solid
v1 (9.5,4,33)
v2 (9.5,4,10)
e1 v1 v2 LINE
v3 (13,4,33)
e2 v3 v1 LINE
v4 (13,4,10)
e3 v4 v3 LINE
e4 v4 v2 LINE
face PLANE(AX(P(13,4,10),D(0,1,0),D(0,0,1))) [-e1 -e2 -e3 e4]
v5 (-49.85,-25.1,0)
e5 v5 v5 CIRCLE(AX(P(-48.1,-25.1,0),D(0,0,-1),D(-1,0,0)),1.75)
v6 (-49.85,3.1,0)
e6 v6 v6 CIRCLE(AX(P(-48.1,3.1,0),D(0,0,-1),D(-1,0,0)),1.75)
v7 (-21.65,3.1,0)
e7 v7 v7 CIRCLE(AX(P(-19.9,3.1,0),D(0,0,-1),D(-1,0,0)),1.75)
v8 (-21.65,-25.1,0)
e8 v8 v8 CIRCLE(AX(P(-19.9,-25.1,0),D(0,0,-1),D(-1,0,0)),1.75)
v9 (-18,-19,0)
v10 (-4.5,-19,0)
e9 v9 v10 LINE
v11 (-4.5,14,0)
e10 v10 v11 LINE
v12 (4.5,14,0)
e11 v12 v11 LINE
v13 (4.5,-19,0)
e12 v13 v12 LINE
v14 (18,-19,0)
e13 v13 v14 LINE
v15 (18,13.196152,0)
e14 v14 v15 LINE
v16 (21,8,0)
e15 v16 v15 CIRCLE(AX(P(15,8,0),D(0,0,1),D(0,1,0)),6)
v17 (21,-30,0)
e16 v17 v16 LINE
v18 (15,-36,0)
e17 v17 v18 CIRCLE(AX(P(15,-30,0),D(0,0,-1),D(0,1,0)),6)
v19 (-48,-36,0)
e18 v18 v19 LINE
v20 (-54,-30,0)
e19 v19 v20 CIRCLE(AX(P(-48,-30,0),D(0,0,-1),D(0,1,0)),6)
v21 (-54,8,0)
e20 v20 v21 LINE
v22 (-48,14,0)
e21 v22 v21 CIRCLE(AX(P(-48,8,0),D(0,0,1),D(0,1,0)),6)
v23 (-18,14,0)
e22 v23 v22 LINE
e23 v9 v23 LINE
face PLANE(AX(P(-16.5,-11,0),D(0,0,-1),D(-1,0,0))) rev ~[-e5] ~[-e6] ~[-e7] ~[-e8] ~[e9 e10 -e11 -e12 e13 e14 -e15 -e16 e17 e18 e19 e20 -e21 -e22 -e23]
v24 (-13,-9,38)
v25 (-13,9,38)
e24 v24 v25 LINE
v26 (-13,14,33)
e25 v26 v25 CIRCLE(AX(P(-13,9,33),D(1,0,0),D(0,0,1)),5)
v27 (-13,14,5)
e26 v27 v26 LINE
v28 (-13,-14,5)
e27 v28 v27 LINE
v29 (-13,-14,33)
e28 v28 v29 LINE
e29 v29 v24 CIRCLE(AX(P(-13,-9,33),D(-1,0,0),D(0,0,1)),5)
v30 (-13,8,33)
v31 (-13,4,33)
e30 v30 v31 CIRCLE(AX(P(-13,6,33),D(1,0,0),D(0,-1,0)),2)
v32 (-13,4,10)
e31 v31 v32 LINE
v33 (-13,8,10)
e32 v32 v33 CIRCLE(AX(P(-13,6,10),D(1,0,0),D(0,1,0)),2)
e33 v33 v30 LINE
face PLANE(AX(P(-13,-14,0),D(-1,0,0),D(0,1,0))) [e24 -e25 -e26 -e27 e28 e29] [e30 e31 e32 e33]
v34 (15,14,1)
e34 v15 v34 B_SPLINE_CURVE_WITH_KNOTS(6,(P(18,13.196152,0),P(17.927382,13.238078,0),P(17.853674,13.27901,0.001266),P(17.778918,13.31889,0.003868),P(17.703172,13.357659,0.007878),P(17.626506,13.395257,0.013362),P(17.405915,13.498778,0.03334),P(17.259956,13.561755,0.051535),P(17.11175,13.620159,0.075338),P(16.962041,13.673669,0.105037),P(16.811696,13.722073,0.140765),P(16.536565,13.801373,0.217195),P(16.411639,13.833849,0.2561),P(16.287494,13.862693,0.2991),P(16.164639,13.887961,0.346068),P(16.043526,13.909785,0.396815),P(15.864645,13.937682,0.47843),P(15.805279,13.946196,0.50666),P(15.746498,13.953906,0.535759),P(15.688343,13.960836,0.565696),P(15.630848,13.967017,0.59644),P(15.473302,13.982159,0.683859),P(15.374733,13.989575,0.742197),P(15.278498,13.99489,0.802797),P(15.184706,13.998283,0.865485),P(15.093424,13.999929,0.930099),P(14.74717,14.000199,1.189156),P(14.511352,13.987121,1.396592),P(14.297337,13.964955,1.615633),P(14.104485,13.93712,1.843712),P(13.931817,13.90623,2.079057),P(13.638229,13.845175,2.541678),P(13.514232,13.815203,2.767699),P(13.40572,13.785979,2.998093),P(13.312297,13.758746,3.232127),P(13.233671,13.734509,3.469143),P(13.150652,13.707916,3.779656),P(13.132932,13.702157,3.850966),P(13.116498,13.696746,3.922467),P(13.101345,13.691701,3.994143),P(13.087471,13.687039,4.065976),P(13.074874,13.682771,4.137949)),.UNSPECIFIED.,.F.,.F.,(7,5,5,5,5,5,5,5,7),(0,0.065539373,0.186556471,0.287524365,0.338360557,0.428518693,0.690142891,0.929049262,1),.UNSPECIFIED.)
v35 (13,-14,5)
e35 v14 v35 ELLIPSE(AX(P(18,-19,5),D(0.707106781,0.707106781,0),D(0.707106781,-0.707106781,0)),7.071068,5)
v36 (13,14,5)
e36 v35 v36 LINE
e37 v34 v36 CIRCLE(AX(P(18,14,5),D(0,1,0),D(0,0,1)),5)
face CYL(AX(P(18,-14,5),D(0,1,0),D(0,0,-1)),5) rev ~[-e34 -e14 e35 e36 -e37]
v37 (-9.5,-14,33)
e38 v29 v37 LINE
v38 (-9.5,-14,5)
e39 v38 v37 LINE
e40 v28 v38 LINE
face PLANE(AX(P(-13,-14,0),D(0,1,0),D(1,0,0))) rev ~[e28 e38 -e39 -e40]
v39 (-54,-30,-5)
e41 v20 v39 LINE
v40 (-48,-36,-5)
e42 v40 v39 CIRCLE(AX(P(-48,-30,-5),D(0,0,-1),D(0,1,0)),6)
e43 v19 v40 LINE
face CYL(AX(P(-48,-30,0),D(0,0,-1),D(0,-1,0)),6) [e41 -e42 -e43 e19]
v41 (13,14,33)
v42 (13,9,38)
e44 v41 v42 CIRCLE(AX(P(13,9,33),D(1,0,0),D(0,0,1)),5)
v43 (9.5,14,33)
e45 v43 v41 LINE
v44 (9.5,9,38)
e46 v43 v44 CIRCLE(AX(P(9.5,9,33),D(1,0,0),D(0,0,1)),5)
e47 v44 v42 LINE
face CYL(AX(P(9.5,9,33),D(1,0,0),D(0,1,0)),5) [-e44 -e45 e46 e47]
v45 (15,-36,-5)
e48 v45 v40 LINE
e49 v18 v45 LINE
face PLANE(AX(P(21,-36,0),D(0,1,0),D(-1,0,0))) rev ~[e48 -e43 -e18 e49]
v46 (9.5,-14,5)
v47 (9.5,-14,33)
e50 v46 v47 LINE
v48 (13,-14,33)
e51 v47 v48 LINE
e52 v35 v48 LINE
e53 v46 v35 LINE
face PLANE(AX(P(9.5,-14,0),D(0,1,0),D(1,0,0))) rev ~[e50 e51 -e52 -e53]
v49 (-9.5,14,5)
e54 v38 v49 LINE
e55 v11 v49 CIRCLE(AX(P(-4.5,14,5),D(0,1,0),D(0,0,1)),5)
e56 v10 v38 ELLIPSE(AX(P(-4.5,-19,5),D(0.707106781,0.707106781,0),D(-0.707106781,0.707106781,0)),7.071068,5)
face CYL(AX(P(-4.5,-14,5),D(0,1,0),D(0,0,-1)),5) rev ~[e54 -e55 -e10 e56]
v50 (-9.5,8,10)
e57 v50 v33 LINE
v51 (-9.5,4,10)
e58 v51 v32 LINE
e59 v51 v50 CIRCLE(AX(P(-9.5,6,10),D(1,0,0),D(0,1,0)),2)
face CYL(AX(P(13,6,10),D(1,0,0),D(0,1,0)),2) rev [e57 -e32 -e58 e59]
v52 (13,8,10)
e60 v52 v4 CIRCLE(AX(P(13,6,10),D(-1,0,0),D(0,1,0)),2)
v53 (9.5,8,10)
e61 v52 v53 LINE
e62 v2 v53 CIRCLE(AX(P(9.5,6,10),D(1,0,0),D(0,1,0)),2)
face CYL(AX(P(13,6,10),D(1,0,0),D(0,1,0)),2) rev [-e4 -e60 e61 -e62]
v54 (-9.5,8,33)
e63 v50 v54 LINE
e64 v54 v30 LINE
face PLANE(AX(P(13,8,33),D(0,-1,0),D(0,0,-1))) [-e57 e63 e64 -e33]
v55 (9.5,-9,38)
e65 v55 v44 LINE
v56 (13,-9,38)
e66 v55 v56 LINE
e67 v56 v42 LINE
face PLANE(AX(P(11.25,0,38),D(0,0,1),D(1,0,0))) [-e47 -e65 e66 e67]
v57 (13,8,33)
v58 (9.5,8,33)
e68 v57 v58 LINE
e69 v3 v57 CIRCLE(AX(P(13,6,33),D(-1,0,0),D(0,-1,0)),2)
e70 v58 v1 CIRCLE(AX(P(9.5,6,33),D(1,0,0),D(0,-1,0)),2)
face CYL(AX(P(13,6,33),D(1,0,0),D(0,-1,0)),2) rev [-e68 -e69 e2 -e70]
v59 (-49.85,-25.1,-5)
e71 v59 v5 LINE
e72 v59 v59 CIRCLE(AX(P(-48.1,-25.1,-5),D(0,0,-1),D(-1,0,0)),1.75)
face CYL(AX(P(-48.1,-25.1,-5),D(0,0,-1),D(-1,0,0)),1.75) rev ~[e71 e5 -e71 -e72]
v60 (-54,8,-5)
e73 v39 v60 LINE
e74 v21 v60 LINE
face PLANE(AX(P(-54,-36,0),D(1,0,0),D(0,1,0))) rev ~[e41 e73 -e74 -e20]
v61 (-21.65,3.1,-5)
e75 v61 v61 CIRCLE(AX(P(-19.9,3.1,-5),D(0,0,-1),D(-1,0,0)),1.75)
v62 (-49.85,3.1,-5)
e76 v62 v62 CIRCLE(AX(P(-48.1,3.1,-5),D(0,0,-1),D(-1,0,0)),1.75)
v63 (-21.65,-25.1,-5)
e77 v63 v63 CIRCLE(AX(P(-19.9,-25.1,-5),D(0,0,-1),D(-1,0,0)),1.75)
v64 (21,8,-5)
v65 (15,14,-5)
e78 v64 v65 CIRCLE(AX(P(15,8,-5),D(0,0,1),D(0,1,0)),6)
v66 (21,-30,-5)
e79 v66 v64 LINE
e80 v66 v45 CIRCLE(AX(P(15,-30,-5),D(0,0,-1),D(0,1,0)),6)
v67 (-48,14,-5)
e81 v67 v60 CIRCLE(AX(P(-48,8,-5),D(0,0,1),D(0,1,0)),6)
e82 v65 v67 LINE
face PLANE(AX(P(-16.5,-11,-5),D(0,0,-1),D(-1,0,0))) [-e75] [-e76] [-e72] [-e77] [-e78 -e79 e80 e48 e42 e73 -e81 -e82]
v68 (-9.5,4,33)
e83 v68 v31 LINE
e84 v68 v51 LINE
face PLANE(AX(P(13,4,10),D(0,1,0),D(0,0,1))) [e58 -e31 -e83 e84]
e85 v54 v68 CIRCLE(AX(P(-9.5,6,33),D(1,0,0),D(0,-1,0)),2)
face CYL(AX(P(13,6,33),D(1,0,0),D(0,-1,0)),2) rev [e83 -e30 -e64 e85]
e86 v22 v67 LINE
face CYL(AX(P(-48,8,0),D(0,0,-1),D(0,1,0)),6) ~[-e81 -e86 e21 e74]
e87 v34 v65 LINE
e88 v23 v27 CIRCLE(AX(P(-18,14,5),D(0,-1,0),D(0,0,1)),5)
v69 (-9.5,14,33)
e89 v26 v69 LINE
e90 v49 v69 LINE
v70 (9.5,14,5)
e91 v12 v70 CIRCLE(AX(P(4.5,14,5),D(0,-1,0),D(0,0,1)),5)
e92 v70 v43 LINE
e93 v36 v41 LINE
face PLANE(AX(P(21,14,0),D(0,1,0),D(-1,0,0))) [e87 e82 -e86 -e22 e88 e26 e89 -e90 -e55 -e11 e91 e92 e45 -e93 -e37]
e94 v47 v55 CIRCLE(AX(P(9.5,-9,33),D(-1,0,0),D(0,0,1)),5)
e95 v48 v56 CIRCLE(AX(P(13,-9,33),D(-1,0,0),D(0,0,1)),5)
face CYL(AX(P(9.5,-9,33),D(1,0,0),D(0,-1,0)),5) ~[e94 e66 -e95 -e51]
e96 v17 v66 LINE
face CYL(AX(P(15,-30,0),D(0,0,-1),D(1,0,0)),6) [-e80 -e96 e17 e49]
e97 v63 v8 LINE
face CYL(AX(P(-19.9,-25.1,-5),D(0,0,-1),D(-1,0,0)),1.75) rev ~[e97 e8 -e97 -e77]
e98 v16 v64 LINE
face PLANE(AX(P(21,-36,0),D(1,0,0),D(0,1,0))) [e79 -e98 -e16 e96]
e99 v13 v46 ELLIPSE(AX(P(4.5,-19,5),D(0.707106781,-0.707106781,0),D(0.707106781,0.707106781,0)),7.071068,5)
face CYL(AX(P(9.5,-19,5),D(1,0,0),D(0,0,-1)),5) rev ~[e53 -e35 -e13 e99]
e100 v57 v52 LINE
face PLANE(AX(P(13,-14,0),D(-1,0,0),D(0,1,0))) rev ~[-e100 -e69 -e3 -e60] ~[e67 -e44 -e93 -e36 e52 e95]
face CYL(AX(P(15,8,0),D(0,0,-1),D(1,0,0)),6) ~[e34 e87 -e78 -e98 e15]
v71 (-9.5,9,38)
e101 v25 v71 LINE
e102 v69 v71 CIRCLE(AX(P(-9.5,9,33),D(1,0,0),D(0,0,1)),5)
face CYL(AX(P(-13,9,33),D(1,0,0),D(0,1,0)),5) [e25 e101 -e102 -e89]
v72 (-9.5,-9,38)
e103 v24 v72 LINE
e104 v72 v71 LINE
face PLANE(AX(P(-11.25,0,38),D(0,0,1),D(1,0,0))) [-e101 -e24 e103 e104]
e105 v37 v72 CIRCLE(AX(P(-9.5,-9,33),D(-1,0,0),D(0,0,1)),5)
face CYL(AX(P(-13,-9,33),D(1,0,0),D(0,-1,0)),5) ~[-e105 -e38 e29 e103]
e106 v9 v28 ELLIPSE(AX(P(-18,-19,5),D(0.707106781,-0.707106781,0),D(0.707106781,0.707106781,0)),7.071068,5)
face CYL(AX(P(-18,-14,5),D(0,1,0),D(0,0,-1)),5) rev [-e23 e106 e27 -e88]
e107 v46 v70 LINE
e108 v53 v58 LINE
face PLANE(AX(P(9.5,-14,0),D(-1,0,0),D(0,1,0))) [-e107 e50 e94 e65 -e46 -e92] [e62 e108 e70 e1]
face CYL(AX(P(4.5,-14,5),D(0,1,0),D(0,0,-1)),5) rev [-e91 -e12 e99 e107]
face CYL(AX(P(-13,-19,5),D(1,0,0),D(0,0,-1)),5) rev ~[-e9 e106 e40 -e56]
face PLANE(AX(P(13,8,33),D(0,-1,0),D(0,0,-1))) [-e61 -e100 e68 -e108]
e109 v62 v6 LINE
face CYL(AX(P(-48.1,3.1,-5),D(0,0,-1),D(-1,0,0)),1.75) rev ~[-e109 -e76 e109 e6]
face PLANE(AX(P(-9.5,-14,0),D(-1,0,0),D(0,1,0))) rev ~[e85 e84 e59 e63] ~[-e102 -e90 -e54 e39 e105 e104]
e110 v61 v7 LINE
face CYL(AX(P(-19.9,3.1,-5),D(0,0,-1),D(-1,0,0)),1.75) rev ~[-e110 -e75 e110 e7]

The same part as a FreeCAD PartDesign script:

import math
import FreeCAD as App
import Part
import Sketcher

V = App.Vector
Q = App.Units.Quantity


def edges_at(feature, points):
    """Names of the edges that pass closest to the given points."""
    edges = feature.Shape.Edges
    near = lambda p: min(range(len(edges)), key=lambda i: edges[i].distToShape(Part.Vertex(*p))[0])
    return sorted({f"Edge{near(p) + 1}" for p in points})


def add_polygon(sketch, points):
    """Adds a closed chain of lines whose ends are joined by coincident constraints."""
    first, n = sketch.GeometryCount, len(points)
    for a, b in zip(points, points[1:] + points[:1]):
        sketch.addGeometry(Part.LineSegment(App.Vector(*a, 0), App.Vector(*b, 0)), False)
    for i in range(n):
        sketch.addConstraint(Sketcher.Constraint("Coincident", first + i, 2, first + (i + 1) % n, 1))

doc = App.newDocument("Part")
body = doc.addObject("PartDesign::Body", "Body")

# Sketch on XY plane
sketch1 = body.newObject("Sketcher::SketchObject", "Sketch")
sketch1.AttachmentSupport = (doc.getObject("XY_Plane"), [""])
sketch1.MapMode = "FlatFace"
add_polygon(sketch1, [(-13, 14), (-13, -14), (-9.5, -14), (-9.5, 14)])  # lines 0-3
sketch1.addConstraint([
    Sketcher.Constraint("Vertical", 0),
    Sketcher.Constraint("Horizontal", 1),
    Sketcher.Constraint("Vertical", 2),
    Sketcher.Constraint("Horizontal", 3),
    Sketcher.Constraint("DistanceY", 0, 2, 0, 1, Q("28 mm")),
    Sketcher.Constraint("DistanceX", 1, 1, 1, 2, Q("3.5 mm")),
    Sketcher.Constraint("DistanceX", 0, 2, -1, 1, Q("13 mm")),
    Sketcher.Constraint("DistanceY", 0, 2, -1, 1, Q("14 mm")),
])
pad1 = body.newObject("PartDesign::Pad", "Pad")
pad1.Profile = sketch1
pad1.Length = 38
body2 = doc.addObject("PartDesign::Body", "Body001")

# Sketch on XY plane
sketch2 = body2.newObject("Sketcher::SketchObject", "Sketch001")
sketch2.AttachmentSupport = (doc.getObject("XY_Plane001"), [""])
sketch2.MapMode = "FlatFace"
add_polygon(sketch2, [(9.5, 14), (9.5, -14), (13, -14), (13, 14)])  # lines 0-3
sketch2.addConstraint([
    Sketcher.Constraint("Vertical", 0),
    Sketcher.Constraint("Horizontal", 1),
    Sketcher.Constraint("Vertical", 2),
    Sketcher.Constraint("Horizontal", 3),
    Sketcher.Constraint("DistanceY", 0, 2, 0, 1, Q("28 mm")),
    Sketcher.Constraint("DistanceX", 1, 1, 1, 2, Q("3.5 mm")),
    Sketcher.Constraint("DistanceY", 0, 2, -1, 1, Q("14 mm")),
    Sketcher.Constraint("DistanceX", -1, 1, 1, 2, Q("13 mm")),
])
pad2 = body2.newObject("PartDesign::Pad", "Pad001")
pad2.Profile = sketch2
pad2.Length = 38
body.AllowCompound = True
doc.recompute()

boolean = body.newObject("PartDesign::Boolean", "Boolean")
boolean.Type = "Fuse"
boolean.addObjects([body2])

# Sketch on XY plane
sketch3 = body.newObject("Sketcher::SketchObject", "Sketch002")
sketch3.AttachmentSupport = (doc.getObject("XY_Plane"), [""])
sketch3.MapMode = "FlatFace"
add_polygon(sketch3, [(21, 14), (21, -36), (-54, -36), (-54, 14)])  # lines 0-3
sketch3.addConstraint([
    Sketcher.Constraint("Vertical", 0),
    Sketcher.Constraint("Horizontal", 1),
    Sketcher.Constraint("Vertical", 2),
    Sketcher.Constraint("Horizontal", 3),
    Sketcher.Constraint("DistanceX", 1, 2, 1, 1, Q("75 mm")),
    Sketcher.Constraint("DistanceY", 0, 2, 0, 1, Q("50 mm")),
    Sketcher.Constraint("DistanceX", -1, 1, 0, 2, Q("21 mm")),
    Sketcher.Constraint("DistanceY", 0, 2, -1, 1, Q("36 mm")),
])
pad3 = body.newObject("PartDesign::Pad", "Pad002")
pad3.Profile = sketch3
pad3.Length = 5
pad3.Reversed = True
doc.recompute()

fillet = body.newObject("PartDesign::Fillet", "Fillet")
fillet.Base = (pad3, edges_at(pad3, [
    (-54, 14, -2.5),
    (21, 14, -2.5),
    (21, -36, -2.5),
    (-54, -36, -2.5),
]))
fillet.Radius = 6
doc.recompute()

fillet2 = body.newObject("PartDesign::Fillet", "Fillet001")
fillet2.Base = (fillet, edges_at(fillet, [
    (-11.25, 14, 38),
    (11.25, -14, 0),
    (13, 0, 0),
    (11.25, 14, 38),
    (11.25, -14, 38),
    (9.5, 0, 0),
    (-11.25, -14, 38),
    (-13, 0, 0),
    (-9.5, 0, 0),
    (-11.25, -14, 0),
]))
fillet2.Radius = 5

# Sketch on YZ plane
sketch4 = body.newObject("Sketcher::SketchObject", "Sketch003")
sketch4.AttachmentSupport = (doc.getObject("YZ_Plane"), [""])
sketch4.MapMode = "FlatFace"
sketch4.AttachmentOffset = App.Placement(V(0, 0, 13), App.Rotation())
sketch4.addGeometry([
    Part.LineSegment(V(4, 33, 0), V(4, 10, 0)),
    Part.ArcOfCircle(Part.Circle(V(6, 10, 0), V(0, 0, 1), 2), math.radians(180), math.radians(360)),
    Part.LineSegment(V(8, 10, 0), V(8, 33, 0)),
    Part.ArcOfCircle(Part.Circle(V(6, 33, 0), V(0, 0, 1), 2), math.radians(0), math.radians(180)),
], False)
sketch4.addConstraint([
    Sketcher.Constraint("Tangent", 0, 2, 1, 1),
    Sketcher.Constraint("Tangent", 1, 2, 2, 1),
    Sketcher.Constraint("Tangent", 2, 2, 3, 1),
    Sketcher.Constraint("Tangent", 3, 2, 0, 1),
    Sketcher.Constraint("Vertical", 0),
    Sketcher.Constraint("Vertical", 2),
    Sketcher.Constraint("Radius", 1, Q("2 mm")),
    Sketcher.Constraint("DistanceY", 0, 2, 0, 1, Q("23 mm")),
    Sketcher.Constraint("DistanceX", -1, 1, 1, 3, Q("6 mm")),
    Sketcher.Constraint("DistanceY", -1, 1, 1, 3, Q("10 mm")),
])
pocket1 = body.newObject("PartDesign::Pocket", "Pocket")
pocket1.Profile = sketch4
pocket1.Type = "ThroughAll"
pocket1.Midplane = True

# Sketch on XY plane
sketch5 = body.newObject("Sketcher::SketchObject", "Sketch004")
sketch5.AttachmentSupport = (doc.getObject("XY_Plane"), [""])
sketch5.MapMode = "FlatFace"
sketch5.AttachmentOffset = App.Placement(V(0, 0, -5), App.Rotation())
sketch5.addGeometry([
    Part.Circle(V(-19.9, 3.1, 0), V(0, 0, 1), 1.8),
    Part.Circle(V(-48.1, 3.1, 0), V(0, 0, 1), 1.8),
    Part.Circle(V(-48.1, -25.1, 0), V(0, 0, 1), 1.8),
    Part.Circle(V(-19.9, -25.1, 0), V(0, 0, 1), 1.8),
], False)
sketch5.addConstraint([
    Sketcher.Constraint("Equal", 0, 1),
    Sketcher.Constraint("Equal", 1, 2),
    Sketcher.Constraint("Equal", 2, 3),
    Sketcher.Constraint("Horizontal", 0, 3, 1, 3),
    Sketcher.Constraint("Horizontal", 2, 3, 3, 3),
    Sketcher.Constraint("Vertical", 1, 3, 2, 3),
    Sketcher.Constraint("Vertical", 0, 3, 3, 3),
    Sketcher.Constraint("Diameter", 0, Q("3.5 mm")),
    Sketcher.Constraint("DistanceX", 0, 3, -1, 1, Q("19.9 mm")),
    Sketcher.Constraint("DistanceY", -1, 1, 0, 3, Q("3.1 mm")),
    Sketcher.Constraint("DistanceX", 1, 3, -1, 1, Q("48.1 mm")),
    Sketcher.Constraint("DistanceY", 2, 3, -1, 1, Q("25.1 mm")),
])
pocket2 = body.newObject("PartDesign::Pocket", "Pocket001")
pocket2.Profile = sketch5
pocket2.Type = "ThroughAll"
pocket2.Midplane = True

doc.recompute()
